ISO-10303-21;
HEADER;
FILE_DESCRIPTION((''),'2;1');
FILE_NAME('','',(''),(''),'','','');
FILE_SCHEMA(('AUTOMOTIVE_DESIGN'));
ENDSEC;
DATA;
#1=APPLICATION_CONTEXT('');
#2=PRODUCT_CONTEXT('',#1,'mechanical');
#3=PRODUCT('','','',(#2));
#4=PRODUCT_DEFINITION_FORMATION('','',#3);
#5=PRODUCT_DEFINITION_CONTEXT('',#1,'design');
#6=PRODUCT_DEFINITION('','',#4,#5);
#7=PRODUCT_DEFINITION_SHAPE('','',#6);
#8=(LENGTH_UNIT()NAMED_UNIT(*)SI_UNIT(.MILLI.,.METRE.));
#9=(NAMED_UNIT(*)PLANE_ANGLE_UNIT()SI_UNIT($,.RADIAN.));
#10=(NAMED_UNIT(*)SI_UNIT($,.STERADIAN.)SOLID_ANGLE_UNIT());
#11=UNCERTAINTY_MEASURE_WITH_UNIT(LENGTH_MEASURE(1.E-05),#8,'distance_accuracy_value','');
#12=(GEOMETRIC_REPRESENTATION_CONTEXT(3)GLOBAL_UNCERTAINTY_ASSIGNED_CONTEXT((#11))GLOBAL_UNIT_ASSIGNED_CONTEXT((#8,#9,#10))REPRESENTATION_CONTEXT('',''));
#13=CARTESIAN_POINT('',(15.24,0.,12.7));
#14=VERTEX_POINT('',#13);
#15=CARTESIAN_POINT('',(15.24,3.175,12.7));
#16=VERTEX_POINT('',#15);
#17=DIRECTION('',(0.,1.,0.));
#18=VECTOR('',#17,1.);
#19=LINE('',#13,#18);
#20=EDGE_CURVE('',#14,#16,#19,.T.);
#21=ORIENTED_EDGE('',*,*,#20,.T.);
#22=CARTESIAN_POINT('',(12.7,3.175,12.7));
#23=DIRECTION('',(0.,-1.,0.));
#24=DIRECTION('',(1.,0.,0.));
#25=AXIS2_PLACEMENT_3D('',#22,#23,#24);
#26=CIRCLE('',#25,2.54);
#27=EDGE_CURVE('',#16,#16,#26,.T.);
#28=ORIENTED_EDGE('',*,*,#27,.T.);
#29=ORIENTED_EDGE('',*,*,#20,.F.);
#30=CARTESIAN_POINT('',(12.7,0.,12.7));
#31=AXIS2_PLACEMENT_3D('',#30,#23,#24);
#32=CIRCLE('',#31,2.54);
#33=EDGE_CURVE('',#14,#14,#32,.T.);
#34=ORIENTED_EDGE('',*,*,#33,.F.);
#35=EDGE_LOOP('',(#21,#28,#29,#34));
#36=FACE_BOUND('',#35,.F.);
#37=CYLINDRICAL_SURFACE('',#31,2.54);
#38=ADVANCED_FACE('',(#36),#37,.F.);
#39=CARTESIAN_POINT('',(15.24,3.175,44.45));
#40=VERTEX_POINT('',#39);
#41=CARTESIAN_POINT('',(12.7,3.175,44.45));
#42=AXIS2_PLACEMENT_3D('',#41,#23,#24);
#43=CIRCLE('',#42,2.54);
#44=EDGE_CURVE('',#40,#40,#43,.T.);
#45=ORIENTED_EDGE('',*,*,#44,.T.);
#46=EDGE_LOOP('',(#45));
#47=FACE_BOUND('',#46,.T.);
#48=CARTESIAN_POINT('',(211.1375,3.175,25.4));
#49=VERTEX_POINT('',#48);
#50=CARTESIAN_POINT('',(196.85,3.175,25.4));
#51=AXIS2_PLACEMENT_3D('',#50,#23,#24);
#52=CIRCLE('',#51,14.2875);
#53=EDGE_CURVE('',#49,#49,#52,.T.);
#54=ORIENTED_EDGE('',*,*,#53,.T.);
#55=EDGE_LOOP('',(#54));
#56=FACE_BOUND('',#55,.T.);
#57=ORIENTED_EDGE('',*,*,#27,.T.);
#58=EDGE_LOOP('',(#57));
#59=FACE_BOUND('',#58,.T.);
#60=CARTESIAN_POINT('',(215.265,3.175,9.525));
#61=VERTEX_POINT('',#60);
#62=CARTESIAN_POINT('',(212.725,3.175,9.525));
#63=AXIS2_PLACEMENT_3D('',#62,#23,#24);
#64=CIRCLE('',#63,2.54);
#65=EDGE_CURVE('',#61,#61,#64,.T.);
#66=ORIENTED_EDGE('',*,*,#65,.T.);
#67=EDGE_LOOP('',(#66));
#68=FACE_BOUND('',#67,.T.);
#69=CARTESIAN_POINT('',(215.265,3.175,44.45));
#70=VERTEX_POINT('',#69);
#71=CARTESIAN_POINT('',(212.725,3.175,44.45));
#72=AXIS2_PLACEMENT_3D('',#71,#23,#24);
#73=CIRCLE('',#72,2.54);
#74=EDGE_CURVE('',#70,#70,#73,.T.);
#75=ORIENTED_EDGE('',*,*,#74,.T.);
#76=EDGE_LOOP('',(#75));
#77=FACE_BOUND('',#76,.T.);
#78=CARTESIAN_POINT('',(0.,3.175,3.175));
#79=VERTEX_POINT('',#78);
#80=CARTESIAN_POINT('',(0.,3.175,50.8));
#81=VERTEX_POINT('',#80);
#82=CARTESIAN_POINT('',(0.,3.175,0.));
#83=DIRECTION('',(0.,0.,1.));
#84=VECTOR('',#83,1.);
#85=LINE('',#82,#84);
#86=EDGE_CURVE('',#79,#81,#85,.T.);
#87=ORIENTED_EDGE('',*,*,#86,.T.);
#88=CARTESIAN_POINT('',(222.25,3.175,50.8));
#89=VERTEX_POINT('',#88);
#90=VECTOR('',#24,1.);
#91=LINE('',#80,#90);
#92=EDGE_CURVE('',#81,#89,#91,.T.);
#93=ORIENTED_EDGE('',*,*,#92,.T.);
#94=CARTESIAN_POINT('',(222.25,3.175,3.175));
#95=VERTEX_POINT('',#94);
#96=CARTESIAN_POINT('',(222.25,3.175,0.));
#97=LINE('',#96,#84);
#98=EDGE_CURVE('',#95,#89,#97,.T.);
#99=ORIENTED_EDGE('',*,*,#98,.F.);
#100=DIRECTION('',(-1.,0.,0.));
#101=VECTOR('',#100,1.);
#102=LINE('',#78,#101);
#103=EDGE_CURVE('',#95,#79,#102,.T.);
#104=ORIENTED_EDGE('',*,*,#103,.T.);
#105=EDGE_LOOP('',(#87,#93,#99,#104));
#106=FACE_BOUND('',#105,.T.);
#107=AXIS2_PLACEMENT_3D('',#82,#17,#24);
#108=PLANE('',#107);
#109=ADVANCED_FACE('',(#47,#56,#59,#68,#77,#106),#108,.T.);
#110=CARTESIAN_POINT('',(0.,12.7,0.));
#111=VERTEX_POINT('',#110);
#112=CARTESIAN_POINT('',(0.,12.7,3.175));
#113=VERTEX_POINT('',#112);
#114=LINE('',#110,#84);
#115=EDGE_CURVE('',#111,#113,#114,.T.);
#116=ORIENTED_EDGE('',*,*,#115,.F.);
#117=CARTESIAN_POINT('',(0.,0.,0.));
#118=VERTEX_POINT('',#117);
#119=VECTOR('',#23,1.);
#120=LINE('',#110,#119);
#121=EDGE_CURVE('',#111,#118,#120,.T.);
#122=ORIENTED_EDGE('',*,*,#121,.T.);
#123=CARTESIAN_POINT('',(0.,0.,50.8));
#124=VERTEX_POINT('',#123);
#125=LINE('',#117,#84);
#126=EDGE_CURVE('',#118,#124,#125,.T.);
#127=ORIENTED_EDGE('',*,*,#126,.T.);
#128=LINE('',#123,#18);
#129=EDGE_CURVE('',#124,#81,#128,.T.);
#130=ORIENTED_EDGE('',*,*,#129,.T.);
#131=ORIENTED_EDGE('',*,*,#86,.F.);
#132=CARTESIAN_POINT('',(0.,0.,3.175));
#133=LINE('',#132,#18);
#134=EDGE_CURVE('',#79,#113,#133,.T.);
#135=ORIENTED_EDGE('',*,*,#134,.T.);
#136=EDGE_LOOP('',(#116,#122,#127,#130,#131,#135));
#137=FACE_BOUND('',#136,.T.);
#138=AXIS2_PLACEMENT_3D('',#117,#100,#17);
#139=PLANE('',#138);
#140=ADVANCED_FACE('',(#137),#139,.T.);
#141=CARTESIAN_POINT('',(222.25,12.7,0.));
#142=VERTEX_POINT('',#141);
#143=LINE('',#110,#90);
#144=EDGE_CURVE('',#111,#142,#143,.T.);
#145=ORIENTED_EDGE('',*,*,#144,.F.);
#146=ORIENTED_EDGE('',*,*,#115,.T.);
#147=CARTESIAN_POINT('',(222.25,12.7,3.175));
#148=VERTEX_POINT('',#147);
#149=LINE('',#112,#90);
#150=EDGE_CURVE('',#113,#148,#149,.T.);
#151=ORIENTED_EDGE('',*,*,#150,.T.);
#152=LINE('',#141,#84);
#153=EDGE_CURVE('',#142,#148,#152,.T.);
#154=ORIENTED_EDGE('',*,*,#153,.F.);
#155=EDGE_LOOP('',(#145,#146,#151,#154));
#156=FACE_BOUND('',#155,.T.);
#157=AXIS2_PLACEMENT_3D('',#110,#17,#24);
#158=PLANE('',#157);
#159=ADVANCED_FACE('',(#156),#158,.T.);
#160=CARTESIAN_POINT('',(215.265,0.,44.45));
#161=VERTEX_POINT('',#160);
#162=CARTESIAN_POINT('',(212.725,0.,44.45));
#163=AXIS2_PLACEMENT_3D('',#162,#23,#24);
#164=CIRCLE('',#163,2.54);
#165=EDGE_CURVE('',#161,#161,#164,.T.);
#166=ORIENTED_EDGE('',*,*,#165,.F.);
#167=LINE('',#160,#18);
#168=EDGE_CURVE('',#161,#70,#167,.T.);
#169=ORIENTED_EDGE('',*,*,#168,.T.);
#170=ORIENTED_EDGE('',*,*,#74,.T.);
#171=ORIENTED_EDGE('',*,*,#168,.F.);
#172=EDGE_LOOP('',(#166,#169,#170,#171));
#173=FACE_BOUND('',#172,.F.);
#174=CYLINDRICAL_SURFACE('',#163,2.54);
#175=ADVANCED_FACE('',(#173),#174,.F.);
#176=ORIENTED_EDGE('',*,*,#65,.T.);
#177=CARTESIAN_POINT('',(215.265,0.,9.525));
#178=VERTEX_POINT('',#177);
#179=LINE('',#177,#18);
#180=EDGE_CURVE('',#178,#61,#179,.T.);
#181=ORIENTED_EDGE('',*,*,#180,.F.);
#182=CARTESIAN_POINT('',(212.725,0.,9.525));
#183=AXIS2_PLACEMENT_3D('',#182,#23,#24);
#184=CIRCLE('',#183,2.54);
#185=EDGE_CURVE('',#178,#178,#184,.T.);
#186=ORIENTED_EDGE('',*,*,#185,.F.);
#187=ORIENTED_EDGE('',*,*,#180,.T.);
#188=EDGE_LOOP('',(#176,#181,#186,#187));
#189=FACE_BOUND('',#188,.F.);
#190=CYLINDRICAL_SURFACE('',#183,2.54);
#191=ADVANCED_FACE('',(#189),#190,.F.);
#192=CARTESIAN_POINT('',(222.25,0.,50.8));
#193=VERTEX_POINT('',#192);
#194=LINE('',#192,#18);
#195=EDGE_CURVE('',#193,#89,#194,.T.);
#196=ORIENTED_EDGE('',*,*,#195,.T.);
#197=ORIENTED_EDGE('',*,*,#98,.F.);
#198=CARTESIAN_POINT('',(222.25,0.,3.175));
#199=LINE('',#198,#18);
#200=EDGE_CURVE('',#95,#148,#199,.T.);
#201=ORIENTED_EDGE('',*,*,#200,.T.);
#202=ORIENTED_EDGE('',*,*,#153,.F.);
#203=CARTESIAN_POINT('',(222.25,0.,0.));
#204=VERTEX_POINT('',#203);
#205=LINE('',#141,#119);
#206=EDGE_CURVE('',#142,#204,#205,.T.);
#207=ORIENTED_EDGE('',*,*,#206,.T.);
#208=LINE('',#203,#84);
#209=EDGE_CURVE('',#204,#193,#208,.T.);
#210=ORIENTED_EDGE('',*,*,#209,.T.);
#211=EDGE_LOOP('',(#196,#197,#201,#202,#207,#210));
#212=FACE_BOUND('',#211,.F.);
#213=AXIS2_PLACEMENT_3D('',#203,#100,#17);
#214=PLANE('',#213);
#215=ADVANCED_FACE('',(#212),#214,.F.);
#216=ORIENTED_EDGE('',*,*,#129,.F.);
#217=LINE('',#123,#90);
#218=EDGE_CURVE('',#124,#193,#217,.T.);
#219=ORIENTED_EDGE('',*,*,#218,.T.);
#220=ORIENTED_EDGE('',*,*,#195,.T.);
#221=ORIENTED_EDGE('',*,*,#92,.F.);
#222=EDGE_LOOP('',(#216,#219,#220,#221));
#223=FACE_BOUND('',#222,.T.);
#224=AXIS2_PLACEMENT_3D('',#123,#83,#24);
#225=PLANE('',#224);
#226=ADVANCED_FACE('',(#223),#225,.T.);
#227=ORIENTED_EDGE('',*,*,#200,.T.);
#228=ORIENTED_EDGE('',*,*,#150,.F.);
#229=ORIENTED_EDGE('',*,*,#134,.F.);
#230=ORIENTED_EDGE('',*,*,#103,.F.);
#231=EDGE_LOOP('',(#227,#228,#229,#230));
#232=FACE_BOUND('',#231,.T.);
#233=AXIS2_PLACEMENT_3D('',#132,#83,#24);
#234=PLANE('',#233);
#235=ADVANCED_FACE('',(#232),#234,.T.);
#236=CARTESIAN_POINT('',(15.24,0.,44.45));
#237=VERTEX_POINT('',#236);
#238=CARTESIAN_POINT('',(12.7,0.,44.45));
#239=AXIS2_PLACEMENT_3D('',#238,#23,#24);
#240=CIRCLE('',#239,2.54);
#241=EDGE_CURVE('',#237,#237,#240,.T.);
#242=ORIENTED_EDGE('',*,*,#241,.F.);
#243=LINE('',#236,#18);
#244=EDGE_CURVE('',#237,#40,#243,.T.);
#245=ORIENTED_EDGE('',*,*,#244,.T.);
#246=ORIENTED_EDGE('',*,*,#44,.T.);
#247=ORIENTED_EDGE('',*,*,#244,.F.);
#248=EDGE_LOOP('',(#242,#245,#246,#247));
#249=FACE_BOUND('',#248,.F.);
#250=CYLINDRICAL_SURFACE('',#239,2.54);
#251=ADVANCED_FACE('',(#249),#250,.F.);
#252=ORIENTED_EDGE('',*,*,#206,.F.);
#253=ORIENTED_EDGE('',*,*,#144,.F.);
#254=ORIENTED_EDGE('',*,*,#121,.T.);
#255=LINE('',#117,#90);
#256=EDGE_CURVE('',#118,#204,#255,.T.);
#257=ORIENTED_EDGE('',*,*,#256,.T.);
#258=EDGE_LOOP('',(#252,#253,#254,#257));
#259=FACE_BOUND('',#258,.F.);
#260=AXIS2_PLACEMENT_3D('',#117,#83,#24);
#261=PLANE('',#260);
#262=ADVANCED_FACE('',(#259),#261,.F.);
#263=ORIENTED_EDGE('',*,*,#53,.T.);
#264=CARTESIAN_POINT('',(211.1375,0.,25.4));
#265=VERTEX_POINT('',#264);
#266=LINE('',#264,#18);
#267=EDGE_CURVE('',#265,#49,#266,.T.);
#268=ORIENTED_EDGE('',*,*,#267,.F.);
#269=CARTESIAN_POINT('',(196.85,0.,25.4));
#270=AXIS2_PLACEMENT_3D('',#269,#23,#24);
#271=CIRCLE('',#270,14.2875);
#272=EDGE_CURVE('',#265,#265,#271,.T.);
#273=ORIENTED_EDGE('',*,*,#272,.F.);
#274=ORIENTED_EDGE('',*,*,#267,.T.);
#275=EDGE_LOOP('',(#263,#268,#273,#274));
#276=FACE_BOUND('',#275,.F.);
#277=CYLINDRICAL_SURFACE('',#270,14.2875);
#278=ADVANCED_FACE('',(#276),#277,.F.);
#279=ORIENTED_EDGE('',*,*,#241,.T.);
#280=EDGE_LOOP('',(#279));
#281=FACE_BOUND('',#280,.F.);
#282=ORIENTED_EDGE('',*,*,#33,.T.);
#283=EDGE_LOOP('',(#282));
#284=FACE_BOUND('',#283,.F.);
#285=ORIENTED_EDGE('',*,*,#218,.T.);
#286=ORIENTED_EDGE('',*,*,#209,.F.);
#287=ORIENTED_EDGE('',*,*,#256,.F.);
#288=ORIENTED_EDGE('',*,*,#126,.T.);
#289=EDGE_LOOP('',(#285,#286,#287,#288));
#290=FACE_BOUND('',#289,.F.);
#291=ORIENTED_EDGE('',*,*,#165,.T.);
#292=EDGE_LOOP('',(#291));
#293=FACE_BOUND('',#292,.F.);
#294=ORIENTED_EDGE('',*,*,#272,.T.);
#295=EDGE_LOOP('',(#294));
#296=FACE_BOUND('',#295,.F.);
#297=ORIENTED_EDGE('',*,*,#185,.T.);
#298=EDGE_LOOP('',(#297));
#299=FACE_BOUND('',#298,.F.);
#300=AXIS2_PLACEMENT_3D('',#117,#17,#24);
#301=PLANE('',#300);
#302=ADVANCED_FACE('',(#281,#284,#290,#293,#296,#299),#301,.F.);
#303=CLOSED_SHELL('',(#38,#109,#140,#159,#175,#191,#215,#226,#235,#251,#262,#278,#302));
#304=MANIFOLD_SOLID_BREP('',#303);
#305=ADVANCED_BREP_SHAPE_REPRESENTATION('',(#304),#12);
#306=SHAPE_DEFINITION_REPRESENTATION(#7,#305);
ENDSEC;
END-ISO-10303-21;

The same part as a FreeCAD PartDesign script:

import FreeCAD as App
import Part
import Sketcher

V = App.Vector
Q = App.Units.Quantity


def add_polygon(sketch, points):
    """Adds a closed chain of lines whose ends are joined by coincident constraints."""
    first, n = sketch.GeometryCount, len(points)
    for a, b in zip(points, points[1:] + points[:1]):
        sketch.addGeometry(Part.LineSegment(App.Vector(*a, 0), App.Vector(*b, 0)), False)
    for i in range(n):
        sketch.addConstraint(Sketcher.Constraint("Coincident", first + i, 2, first + (i + 1) % n, 1))

doc = App.newDocument("Part")
body = doc.addObject("PartDesign::Body", "Body")

# Sketch on XY plane
sketch1 = doc.addObject("Sketcher::SketchObject", "Sketch")
body.addObject(sketch1)
sketch1.AttachmentSupport = (doc.XY_Plane, [""])
sketch1.MapMode = "FlatFace"
add_polygon(sketch1, [(0, 0), (222, 0), (222, 13), (0, 13)])  # lines 0-3
sketch1.addConstraint(Sketcher.Constraint("Horizontal", 0))
sketch1.addConstraint(Sketcher.Constraint("Vertical", 1))
sketch1.addConstraint(Sketcher.Constraint("Horizontal", 2))
sketch1.addConstraint(Sketcher.Constraint("Vertical", 3))
sketch1.addConstraint(Sketcher.Constraint("Coincident", 3, 2, -1, 1))
sketch1.addConstraint(Sketcher.Constraint("DistanceY", 1, 1, 1, 2, Q("0.5 in")))
sketch1.addConstraint(Sketcher.Constraint("DistanceX", 0, 1, 0, 2, Q("8.75 in")))
pad1 = doc.addObject("PartDesign::Pad", "Pad")
body.addObject(pad1)
pad1.Profile = sketch1
pad1.Length = Q("0.125 in")

# Sketch on XY plane
sketch2 = doc.addObject("Sketcher::SketchObject", "Sketch001")
body.addObject(sketch2)
sketch2.AttachmentSupport = (doc.XY_Plane, [""])
sketch2.MapMode = "FlatFace"
add_polygon(sketch2, [(0, 3.2), (0, 0), (222.2, 0), (222.2, 3.2)])  # lines 0-3
sketch2.addConstraint(Sketcher.Constraint("Vertical", 0))
sketch2.addConstraint(Sketcher.Constraint("Horizontal", 1))
sketch2.addConstraint(Sketcher.Constraint("Vertical", 2))
sketch2.addConstraint(Sketcher.Constraint("Horizontal", 3))
sketch2.addConstraint(Sketcher.Constraint("Coincident", 0, 2, -1, 1))
sketch2.addConstraint(Sketcher.Constraint("DistanceX", 1, 1, 1, 2, Q("8.75 in")))
sketch2.addConstraint(Sketcher.Constraint("DistanceY", 0, 2, 0, 1, Q("0.125 in")))
pad2 = doc.addObject("PartDesign::Pad", "Pad001")
body.addObject(pad2)
pad2.Profile = sketch2
pad2.Length = Q("2 in")

# Sketch on XZ plane
sketch3 = doc.addObject("Sketcher::SketchObject", "Sketch002")
body.addObject(sketch3)
sketch3.AttachmentSupport = (doc.XZ_Plane, [""])
sketch3.MapMode = "FlatFace"
sketch3.addGeometry(Part.Circle(V(196.8, 25.4, 0), V(0, 0, 1), 14.3), False)
sketch3.addGeometry(Part.Circle(V(12.7, 44.5, 0), V(0, 0, 1), 2.5), False)
sketch3.addGeometry(Part.Circle(V(12.7, 12.7, 0), V(0, 0, 1), 2.5), False)
sketch3.addGeometry(Part.Circle(V(212.7, 44.5, 0), V(0, 0, 1), 2.5), False)
sketch3.addGeometry(Part.Circle(V(212.7, 9.5, 0), V(0, 0, 1), 2.5), False)
sketch3.addConstraint(Sketcher.Constraint("Equal", 1, 2))
sketch3.addConstraint(Sketcher.Constraint("Equal", 2, 3))
sketch3.addConstraint(Sketcher.Constraint("Equal", 3, 4))
sketch3.addConstraint(Sketcher.Constraint("Horizontal", 1, 3, 3, 3))
sketch3.addConstraint(Sketcher.Constraint("Vertical", 1, 3, 2, 3))
sketch3.addConstraint(Sketcher.Constraint("Vertical", 3, 3, 4, 3))
sketch3.addConstraint(Sketcher.Constraint("Diameter", 1, Q("0.2 in")))
sketch3.addConstraint(Sketcher.Constraint("Diameter", 0, Q("1.125 in")))
sketch3.addConstraint(Sketcher.Constraint("DistanceY", -1, 1, 0, 3, Q("1 in")))
sketch3.addConstraint(Sketcher.Constraint("DistanceX", -1, 1, 1, 3, Q("0.5 in")))
sketch3.addConstraint(Sketcher.Constraint("DistanceY", -1, 1, 2, 3, Q("0.5 in")))
sketch3.addConstraint(Sketcher.Constraint("DistanceY", -1, 1, 4, 3, Q("0.375 in")))
sketch3.addConstraint(Sketcher.Constraint("DistanceX", -1, 1, 0, 3, Q("7.75 in")))
sketch3.addConstraint(Sketcher.Constraint("DistanceY", -1, 1, 1, 3, Q("1.75 in")))
sketch3.addConstraint(Sketcher.Constraint("DistanceX", -1, 1, 3, 3, Q("8.375 in")))
pocket1 = doc.addObject("PartDesign::Pocket", "Pocket")
body.addObject(pocket1)
pocket1.Profile = sketch3
pocket1.Type = "ThroughAll"

doc.recompute()
